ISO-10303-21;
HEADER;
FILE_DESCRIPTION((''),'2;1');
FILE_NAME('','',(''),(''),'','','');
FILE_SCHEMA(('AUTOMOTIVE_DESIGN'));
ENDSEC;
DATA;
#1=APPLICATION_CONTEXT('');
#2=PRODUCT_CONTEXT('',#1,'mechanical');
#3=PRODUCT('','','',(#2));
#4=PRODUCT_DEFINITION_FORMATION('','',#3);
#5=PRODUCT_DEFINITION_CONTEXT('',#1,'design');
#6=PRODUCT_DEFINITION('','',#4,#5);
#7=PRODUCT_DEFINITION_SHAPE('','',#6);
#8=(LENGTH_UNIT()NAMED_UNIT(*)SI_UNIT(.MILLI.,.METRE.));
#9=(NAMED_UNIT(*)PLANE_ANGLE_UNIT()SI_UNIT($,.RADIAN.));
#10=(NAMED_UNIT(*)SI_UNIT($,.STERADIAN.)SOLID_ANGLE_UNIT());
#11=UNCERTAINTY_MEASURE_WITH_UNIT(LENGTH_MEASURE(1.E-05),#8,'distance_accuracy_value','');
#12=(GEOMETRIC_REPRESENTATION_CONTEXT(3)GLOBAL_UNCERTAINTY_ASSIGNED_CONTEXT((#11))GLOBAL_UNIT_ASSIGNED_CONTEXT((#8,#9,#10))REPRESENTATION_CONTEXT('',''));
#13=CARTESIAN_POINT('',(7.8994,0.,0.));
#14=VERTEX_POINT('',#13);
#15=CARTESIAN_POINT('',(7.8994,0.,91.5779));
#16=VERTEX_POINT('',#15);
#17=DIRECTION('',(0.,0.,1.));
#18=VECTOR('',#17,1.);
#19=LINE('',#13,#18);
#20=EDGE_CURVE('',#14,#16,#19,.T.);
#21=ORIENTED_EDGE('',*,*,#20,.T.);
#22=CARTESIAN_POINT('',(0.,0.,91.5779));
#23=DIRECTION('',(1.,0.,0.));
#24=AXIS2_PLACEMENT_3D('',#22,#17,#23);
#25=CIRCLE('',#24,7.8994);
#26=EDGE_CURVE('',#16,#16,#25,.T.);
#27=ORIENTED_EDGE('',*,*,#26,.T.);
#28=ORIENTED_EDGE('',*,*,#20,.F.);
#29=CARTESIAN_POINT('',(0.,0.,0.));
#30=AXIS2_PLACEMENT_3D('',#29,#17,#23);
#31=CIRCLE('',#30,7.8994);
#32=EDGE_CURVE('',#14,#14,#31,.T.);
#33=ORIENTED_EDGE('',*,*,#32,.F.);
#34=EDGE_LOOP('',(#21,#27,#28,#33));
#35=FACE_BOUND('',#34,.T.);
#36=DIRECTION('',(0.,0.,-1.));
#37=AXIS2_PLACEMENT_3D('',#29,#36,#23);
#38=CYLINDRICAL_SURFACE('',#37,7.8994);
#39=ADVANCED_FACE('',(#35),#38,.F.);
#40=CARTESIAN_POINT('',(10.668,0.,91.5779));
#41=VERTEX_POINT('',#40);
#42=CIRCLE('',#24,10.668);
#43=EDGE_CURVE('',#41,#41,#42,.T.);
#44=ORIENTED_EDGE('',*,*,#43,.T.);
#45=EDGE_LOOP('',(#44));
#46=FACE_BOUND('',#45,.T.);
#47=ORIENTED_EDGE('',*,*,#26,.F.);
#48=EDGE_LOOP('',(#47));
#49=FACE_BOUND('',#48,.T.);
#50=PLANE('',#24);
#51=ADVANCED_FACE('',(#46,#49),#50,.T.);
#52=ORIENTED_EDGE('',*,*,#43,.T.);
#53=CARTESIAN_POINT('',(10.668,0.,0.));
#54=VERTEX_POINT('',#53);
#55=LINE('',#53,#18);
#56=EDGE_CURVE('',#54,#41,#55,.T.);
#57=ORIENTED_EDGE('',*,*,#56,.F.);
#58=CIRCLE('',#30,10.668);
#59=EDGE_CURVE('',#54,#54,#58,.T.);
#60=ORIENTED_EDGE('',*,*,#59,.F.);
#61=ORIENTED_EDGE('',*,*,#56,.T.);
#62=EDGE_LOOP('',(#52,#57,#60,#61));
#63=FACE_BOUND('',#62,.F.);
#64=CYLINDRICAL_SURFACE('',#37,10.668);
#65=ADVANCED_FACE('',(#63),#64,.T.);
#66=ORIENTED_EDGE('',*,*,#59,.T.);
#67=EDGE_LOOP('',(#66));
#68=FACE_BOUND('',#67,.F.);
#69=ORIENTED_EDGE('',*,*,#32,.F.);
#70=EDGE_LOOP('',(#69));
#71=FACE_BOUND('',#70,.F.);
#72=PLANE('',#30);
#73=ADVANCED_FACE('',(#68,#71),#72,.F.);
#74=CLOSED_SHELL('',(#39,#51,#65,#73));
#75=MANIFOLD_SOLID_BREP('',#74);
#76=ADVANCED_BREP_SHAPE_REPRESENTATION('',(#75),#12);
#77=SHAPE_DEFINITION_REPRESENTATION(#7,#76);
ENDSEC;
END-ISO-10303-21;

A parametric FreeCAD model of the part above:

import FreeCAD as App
import Part
import Sketcher
from FreeCAD import Vector
Q = App.Units.Quantity

doc = App.newDocument("Part")
params = doc.addObject("Spreadsheet::Sheet", "Params")
for row, (alias, value) in enumerate([
    ("sketch1_diameter", "0.84 in"),
    ("sketch1_diameter2", "0.622 in"),
    ("pad1_length", "91.5779 mm"),
], start=1):
    params.set(f"A{row}", alias)
    params.set(f"B{row}", "=" + value)
    params.setAlias(f"B{row}", alias)

body = doc.addObject("PartDesign::Body", "Body")

# Sketch on XY plane
sketch1 = body.newObject("Sketcher::SketchObject", "Sketch")
sketch1.AttachmentSupport = (doc.getObject("XY_Plane"), [""])
sketch1.MapMode = "FlatFace"
sketch1.addGeometry(Part.Circle(Vector(0, 0, 0), Vector(0, 0, 1), 10.668), False)
sketch1.addGeometry(Part.Circle(Vector(0, 0, 0), Vector(0, 0, 1), 7.8994), False)
sketch1.addConstraint(Sketcher.Constraint("Coincident", 0, 3, -1, 1))
sketch1.addConstraint(Sketcher.Constraint("Coincident", 1, 3, -1, 1))
sketch1.addConstraint(Sketcher.Constraint("Diameter", 0, Q("0.84 in")))
sketch1.addConstraint(Sketcher.Constraint("Diameter", 1, Q("0.622 in")))
sketch1.setExpression("Constraints[2]", "Params.sketch1_diameter")
sketch1.setExpression("Constraints[3]", "Params.sketch1_diameter2")
pad1 = body.newObject("PartDesign::Pad", "Pad")
pad1.Profile = sketch1
pad1.setExpression("Length", "Params.pad1_length")

doc.recompute()
